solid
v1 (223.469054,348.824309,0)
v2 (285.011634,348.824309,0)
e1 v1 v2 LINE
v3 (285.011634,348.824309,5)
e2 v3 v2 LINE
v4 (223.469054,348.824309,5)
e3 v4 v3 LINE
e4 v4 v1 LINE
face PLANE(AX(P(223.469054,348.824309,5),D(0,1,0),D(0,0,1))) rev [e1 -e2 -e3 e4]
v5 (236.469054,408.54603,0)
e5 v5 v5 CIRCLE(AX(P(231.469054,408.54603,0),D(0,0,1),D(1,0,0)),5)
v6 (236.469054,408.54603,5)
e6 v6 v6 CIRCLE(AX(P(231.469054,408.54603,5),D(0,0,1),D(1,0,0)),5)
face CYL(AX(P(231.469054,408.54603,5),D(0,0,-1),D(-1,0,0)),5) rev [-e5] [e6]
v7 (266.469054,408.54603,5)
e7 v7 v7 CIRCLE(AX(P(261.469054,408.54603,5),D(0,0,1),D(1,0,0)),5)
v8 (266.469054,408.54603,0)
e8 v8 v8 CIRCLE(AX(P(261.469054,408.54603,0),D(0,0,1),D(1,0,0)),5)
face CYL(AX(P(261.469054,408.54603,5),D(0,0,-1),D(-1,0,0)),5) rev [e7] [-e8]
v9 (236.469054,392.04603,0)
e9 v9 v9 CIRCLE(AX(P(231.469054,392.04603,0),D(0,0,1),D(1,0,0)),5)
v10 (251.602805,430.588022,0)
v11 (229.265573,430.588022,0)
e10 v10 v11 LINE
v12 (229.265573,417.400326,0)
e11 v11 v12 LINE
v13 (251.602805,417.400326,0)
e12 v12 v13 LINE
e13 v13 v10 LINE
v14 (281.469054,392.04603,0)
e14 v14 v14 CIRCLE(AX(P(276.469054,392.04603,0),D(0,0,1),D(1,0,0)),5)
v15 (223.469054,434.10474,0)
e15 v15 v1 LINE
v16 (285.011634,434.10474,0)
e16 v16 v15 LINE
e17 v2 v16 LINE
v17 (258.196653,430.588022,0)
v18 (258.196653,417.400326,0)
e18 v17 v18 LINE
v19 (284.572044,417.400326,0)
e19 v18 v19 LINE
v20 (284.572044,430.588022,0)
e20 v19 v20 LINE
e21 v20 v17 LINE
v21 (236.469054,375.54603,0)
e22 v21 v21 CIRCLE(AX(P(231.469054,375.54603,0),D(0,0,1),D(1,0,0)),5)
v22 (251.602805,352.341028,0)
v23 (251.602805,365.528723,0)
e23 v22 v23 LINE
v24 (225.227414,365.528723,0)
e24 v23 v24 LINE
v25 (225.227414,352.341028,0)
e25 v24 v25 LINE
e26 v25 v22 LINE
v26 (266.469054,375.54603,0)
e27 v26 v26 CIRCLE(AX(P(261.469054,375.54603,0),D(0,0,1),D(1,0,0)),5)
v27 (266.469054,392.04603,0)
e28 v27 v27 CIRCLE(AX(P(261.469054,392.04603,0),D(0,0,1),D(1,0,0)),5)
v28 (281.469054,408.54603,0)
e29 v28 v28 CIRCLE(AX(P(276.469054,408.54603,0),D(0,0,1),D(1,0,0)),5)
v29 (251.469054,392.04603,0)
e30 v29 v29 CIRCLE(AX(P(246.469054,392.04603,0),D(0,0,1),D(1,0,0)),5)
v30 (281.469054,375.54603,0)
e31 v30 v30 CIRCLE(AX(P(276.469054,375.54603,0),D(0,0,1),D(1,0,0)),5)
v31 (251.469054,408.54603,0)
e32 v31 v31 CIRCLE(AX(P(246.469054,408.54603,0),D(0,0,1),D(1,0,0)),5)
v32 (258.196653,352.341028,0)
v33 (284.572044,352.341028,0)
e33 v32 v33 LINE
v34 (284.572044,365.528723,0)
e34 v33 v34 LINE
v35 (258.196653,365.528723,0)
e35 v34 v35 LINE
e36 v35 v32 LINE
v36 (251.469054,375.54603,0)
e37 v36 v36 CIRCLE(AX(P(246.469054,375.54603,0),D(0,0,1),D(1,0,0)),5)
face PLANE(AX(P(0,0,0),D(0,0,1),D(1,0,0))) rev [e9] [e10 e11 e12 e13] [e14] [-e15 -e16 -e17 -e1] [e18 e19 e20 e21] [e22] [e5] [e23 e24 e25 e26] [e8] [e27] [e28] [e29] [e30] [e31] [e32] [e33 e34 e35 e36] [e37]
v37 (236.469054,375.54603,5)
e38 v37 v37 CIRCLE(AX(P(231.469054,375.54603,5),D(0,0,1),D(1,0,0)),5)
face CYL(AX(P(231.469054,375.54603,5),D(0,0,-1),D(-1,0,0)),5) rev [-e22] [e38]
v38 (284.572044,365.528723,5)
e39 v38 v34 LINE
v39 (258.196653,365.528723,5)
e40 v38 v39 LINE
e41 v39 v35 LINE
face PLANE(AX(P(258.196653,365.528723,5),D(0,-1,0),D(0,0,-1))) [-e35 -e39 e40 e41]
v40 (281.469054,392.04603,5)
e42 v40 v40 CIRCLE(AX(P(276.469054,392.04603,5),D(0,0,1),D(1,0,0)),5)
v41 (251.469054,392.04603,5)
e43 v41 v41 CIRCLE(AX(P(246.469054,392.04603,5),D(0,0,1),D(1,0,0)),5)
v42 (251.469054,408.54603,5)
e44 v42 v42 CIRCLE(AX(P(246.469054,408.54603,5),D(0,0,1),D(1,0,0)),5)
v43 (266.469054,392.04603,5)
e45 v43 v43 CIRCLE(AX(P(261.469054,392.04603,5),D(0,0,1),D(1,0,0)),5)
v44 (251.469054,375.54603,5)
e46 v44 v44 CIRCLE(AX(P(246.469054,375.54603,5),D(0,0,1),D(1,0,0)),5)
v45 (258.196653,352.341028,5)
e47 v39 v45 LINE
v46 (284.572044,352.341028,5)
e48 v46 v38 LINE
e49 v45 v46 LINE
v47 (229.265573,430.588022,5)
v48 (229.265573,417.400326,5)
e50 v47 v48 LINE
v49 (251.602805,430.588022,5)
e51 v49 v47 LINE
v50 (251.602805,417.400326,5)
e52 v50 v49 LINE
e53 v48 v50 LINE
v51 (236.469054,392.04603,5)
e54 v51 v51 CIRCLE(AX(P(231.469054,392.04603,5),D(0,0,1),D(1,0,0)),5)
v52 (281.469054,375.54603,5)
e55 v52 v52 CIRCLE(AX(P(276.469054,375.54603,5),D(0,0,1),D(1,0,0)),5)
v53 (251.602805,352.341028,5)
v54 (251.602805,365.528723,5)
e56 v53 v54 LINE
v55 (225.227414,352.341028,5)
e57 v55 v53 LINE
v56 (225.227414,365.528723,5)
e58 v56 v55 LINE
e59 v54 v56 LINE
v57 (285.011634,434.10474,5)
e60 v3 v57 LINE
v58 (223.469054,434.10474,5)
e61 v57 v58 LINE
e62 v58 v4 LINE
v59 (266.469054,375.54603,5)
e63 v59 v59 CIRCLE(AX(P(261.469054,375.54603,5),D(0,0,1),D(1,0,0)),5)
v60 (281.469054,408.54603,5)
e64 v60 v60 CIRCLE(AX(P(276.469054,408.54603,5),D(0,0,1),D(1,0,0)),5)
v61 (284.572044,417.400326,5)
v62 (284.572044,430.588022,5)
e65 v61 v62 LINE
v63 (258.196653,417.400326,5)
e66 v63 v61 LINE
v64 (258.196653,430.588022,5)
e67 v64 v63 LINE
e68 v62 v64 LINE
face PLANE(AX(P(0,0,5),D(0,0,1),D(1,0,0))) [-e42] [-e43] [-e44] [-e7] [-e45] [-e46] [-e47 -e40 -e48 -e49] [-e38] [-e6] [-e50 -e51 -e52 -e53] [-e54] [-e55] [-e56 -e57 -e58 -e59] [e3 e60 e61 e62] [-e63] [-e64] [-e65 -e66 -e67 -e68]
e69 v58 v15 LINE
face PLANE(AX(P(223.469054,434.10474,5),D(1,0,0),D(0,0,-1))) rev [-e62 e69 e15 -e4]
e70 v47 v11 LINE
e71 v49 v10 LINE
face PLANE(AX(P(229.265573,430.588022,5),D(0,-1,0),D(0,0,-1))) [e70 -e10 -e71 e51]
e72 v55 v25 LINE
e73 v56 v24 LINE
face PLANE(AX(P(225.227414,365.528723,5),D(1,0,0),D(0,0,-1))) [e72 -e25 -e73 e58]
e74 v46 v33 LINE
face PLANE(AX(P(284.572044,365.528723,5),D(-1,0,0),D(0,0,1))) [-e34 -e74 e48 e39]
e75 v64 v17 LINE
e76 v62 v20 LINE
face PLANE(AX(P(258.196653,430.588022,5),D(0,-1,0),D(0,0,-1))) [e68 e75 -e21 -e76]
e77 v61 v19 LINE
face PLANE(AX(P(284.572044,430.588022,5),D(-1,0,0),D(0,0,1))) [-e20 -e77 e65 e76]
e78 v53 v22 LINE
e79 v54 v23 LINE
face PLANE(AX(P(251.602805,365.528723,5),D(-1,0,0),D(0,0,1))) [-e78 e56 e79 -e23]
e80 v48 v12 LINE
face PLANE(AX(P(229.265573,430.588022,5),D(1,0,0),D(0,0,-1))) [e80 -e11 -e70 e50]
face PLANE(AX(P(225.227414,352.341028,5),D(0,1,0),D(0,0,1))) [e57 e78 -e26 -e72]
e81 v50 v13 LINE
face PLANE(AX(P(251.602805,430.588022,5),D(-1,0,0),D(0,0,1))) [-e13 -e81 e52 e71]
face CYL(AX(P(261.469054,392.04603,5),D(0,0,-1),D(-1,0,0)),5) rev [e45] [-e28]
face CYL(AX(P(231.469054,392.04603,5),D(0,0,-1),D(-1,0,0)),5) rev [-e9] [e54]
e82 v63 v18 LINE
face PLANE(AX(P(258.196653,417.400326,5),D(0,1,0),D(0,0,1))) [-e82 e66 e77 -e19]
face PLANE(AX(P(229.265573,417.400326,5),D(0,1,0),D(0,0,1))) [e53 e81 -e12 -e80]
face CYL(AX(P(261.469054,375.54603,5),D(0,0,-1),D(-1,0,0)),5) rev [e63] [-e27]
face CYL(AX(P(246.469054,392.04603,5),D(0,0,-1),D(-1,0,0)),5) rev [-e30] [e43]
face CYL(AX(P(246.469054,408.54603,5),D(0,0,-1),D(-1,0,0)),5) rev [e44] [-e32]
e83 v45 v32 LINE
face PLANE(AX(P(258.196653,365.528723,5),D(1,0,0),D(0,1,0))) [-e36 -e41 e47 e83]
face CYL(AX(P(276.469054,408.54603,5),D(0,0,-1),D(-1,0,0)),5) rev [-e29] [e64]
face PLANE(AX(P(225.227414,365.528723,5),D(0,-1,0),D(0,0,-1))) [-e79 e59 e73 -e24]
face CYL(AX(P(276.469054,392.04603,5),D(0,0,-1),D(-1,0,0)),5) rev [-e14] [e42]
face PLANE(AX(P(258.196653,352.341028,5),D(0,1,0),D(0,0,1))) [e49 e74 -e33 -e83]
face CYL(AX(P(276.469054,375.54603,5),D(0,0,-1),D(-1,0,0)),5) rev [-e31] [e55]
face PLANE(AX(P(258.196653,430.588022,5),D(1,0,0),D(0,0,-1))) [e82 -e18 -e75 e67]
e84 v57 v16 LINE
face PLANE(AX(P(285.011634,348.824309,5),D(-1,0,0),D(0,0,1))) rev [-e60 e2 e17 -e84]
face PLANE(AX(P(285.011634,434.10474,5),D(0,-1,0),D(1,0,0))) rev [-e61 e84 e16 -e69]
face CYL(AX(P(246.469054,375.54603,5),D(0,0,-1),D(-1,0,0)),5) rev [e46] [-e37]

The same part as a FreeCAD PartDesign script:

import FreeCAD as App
import Part
import Sketcher

V = App.Vector
Q = App.Units.Quantity


def add_polygon(sketch, points):
    """Adds a closed chain of lines whose ends are joined by coincident constraints."""
    first, n = sketch.GeometryCount, len(points)
    for a, b in zip(points, points[1:] + points[:1]):
        sketch.addGeometry(Part.LineSegment(App.Vector(*a, 0), App.Vector(*b, 0)), False)
    for i in range(n):
        sketch.addConstraint(Sketcher.Constraint("Coincident", first + i, 2, first + (i + 1) % n, 1))

doc = App.newDocument("Part")
body = doc.addObject("PartDesign::Body", "Body")

# Sketch on XY plane
sketch1 = body.newObject("Sketcher::SketchObject", "Sketch")
sketch1.AttachmentSupport = (doc.getObject("XY_Plane"), [""])
sketch1.MapMode = "FlatFace"
add_polygon(sketch1, [(223, 434), (223, 349), (285, 349), (285, 434)])  # lines 0-3
add_polygon(sketch1, [(252, 352), (225, 352), (225, 366), (252, 366)])  # lines 4-7
sketch1.addGeometry(Part.Circle(V(231, 376, 0), V(0, 0, 1), 5), False)  # 8
sketch1.addGeometry(Part.Circle(V(246, 376, 0), V(0, 0, 1), 5), False)  # 9
add_polygon(sketch1, [(285, 352), (258, 352), (258, 366), (285, 366)])  # lines 10-13
sketch1.addGeometry(Part.Circle(V(261, 376, 0), V(0, 0, 1), 5), False)  # 14
sketch1.addGeometry(Part.Circle(V(276, 376, 0), V(0, 0, 1), 5), False)  # 15
sketch1.addGeometry(Part.Circle(V(231, 392, 0), V(0, 0, 1), 5), False)  # 16
sketch1.addGeometry(Part.Circle(V(231, 409, 0), V(0, 0, 1), 5), False)  # 17
sketch1.addGeometry(Part.Circle(V(246, 392, 0), V(0, 0, 1), 5), False)  # 18
sketch1.addGeometry(Part.Circle(V(246, 409, 0), V(0, 0, 1), 5), False)  # 19
add_polygon(sketch1, [(252, 417), (229, 417), (229, 431), (252, 431)])  # lines 20-23
sketch1.addGeometry(Part.Circle(V(261, 392, 0), V(0, 0, 1), 5), False)  # 24
sketch1.addGeometry(Part.Circle(V(261, 409, 0), V(0, 0, 1), 5), False)  # 25
sketch1.addGeometry(Part.Circle(V(276, 392, 0), V(0, 0, 1), 5), False)  # 26
sketch1.addGeometry(Part.Circle(V(276, 409, 0), V(0, 0, 1), 5), False)  # 27
add_polygon(sketch1, [(285, 417), (258, 417), (258, 431), (285, 431)])  # lines 28-31
sketch1.addConstraint([
    Sketcher.Constraint("Vertical", 0),
    Sketcher.Constraint("Horizontal", 1),
    Sketcher.Constraint("Vertical", 2),
    Sketcher.Constraint("Horizontal", 3),
    Sketcher.Constraint("Horizontal", 4),
    Sketcher.Constraint("Vertical", 5),
    Sketcher.Constraint("Horizontal", 6),
    Sketcher.Constraint("Vertical", 7),
    Sketcher.Constraint("Horizontal", 10),
    Sketcher.Constraint("Vertical", 11),
    Sketcher.Constraint("Horizontal", 12),
    Sketcher.Constraint("Vertical", 13),
    Sketcher.Constraint("Horizontal", 20),
    Sketcher.Constraint("Vertical", 21),
    Sketcher.Constraint("Horizontal", 22),
    Sketcher.Constraint("Vertical", 23),
    Sketcher.Constraint("Horizontal", 28),
    Sketcher.Constraint("Vertical", 29),
    Sketcher.Constraint("Horizontal", 30),
    Sketcher.Constraint("Vertical", 31),
    Sketcher.Constraint("Equal", 8, 9),
    Sketcher.Constraint("Equal", 9, 14),
    Sketcher.Constraint("Equal", 14, 15),
    Sketcher.Constraint("Equal", 15, 16),
    Sketcher.Constraint("Equal", 16, 17),
    Sketcher.Constraint("Equal", 17, 18),
    Sketcher.Constraint("Equal", 18, 19),
    Sketcher.Constraint("Equal", 19, 24),
    Sketcher.Constraint("Equal", 24, 25),
    Sketcher.Constraint("Equal", 25, 26),
    Sketcher.Constraint("Equal", 26, 27),
    Sketcher.Constraint("Horizontal", 8, 3, 9, 3),
    Sketcher.Constraint("Horizontal", 9, 3, 14, 3),
    Sketcher.Constraint("Horizontal", 14, 3, 15, 3),
    Sketcher.Constraint("Horizontal", 16, 3, 18, 3),
    Sketcher.Constraint("Horizontal", 17, 3, 19, 3),
    Sketcher.Constraint("Horizontal", 18, 3, 24, 3),
    Sketcher.Constraint("Horizontal", 19, 3, 25, 3),
    Sketcher.Constraint("Horizontal", 24, 3, 26, 3),
    Sketcher.Constraint("Horizontal", 25, 3, 27, 3),
    Sketcher.Constraint("Horizontal", 7, 2, 10, 2),
    Sketcher.Constraint("Horizontal", 6, 2, 11, 2),
    Sketcher.Constraint("Horizontal", 23, 2, 28, 2),
    Sketcher.Constraint("Horizontal", 22, 2, 29, 2),
    Sketcher.Constraint("Vertical", 8, 3, 16, 3),
    Sketcher.Constraint("Vertical", 16, 3, 17, 3),
    Sketcher.Constraint("Vertical", 9, 3, 18, 3),
    Sketcher.Constraint("Vertical", 18, 3, 19, 3),
    Sketcher.Constraint("Vertical", 14, 3, 24, 3),
    Sketcher.Constraint("Vertical", 24, 3, 25, 3),
    Sketcher.Constraint("Vertical", 15, 3, 26, 3),
    Sketcher.Constraint("Vertical", 26, 3, 27, 3),
    Sketcher.Constraint("Vertical", 7, 2, 22, 2),
    Sketcher.Constraint("Vertical", 11, 2, 28, 2),
    Sketcher.Constraint("Vertical", 13, 2, 30, 2),
    Sketcher.Constraint("Equal", 6, 10),
    Sketcher.Constraint("Equal", 13, 21),
    Sketcher.Constraint("Diameter", 8, Q("10 mm")),
    Sketcher.Constraint("DistanceX", 8, 3, 9, 3, Q("15 mm")),
    Sketcher.Constraint("DistanceX", 9, 3, 14, 3, Q("15 mm")),
    Sketcher.Constraint("DistanceX", 14, 3, 15, 3, Q("15 mm")),
    Sketcher.Constraint("DistanceY", 8, 3, 17, 3, Q("33 mm")),
    Sketcher.Constraint("DistanceX", 0, 2, 8, 3, Q("8 mm")),
    Sketcher.Constraint("DistanceY", 8, 3, 16, 3, Q("16.5 mm")),
    Sketcher.Constraint("DistanceX", 1, 1, 1, 2, Q("61.542579 mm")),
    Sketcher.Constraint("DistanceX", 4, 2, 4, 1, Q("26.375391 mm")),
    Sketcher.Constraint("DistanceX", 20, 2, 20, 1, Q("22.337232 mm")),
    Sketcher.Constraint("DistanceY", 0, 2, 0, 1, Q("85.280431 mm")),
    Sketcher.Constraint("DistanceX", 10, 2, 14, 3, Q("3.272402 mm")),
    Sketcher.Constraint("DistanceY", 5, 1, 5, 2, Q("13.187696 mm")),
    Sketcher.Constraint("DistanceY", -1, 1, 8, 3, Q("375.54603 mm")),
    Sketcher.Constraint("DistanceY", -1, 1, 0, 2, Q("348.824309 mm")),
    Sketcher.Constraint("DistanceY", -1, 1, 21, 2, Q("430.588022 mm")),
    Sketcher.Constraint("DistanceX", 0, 2, 4, 2, Q("1.758359 mm")),
    Sketcher.Constraint("DistanceY", 0, 2, 4, 2, Q("3.516719 mm")),
    Sketcher.Constraint("DistanceX", -1, 1, 8, 3, Q("231.469054 mm")),
])
pad1 = body.newObject("PartDesign::Pad", "Pad")
pad1.Profile = sketch1
pad1.Length = 5

doc.recompute()
